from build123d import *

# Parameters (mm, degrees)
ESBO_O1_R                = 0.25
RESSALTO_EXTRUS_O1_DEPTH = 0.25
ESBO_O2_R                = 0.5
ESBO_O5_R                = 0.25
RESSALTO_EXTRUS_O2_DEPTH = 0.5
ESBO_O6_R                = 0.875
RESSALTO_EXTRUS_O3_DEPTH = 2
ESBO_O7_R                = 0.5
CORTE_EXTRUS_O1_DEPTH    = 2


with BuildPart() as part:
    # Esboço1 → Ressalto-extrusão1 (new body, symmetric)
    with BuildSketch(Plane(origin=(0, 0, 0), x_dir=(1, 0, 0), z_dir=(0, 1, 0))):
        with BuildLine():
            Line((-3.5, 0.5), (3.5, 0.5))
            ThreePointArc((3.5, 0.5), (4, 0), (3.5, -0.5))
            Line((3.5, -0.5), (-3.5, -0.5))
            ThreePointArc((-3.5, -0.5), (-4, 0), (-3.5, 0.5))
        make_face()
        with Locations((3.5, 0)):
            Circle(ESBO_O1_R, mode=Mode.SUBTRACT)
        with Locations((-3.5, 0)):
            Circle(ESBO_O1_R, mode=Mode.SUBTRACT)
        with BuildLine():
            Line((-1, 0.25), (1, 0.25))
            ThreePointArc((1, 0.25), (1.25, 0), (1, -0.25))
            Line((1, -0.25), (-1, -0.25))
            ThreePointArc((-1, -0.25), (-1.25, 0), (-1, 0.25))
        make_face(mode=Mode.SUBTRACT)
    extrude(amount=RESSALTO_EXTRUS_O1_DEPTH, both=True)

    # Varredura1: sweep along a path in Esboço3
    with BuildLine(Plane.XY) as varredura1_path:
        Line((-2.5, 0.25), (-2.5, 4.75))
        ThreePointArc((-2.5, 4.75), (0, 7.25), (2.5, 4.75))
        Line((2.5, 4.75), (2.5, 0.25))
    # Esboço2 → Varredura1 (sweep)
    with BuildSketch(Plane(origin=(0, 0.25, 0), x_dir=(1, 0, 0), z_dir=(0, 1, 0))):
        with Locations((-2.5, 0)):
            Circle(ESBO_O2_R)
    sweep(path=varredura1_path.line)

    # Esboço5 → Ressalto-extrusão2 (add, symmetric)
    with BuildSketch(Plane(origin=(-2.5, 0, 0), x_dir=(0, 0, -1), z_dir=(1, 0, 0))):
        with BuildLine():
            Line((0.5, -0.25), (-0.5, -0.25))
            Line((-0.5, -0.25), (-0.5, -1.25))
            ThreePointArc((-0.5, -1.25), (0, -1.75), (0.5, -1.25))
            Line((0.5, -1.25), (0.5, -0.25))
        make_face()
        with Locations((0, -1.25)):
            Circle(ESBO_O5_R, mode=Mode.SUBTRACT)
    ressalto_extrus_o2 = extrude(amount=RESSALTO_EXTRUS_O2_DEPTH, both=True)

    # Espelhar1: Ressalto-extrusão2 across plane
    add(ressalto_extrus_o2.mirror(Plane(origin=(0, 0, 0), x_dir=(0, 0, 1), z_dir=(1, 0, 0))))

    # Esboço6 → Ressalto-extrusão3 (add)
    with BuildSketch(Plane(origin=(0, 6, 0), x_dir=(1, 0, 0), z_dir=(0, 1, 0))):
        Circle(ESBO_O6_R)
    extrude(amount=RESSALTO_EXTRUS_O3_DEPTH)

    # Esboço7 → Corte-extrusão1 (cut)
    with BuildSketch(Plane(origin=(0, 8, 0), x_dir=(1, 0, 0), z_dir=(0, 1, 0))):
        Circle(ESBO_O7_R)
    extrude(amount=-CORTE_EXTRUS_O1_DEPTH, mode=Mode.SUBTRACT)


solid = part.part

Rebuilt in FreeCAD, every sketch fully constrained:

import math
import FreeCAD as App
import Part
import Sketcher

V = App.Vector

doc = App.newDocument("Part")
params = doc.addObject("Spreadsheet::Sheet", "Params")
for row, (alias, value) in enumerate([
    ("sketch1_diameter", "0.5 mm"),
    ("sketch1_radius", "0.5 mm"),
    ("sketch1_width", "7 mm"),
    ("sketch1_width2", "2 mm"),
    ("pad1_length", "0.5 mm"),
    ("sketch2_diameter", "1 mm"),
    ("sketch3_radius", "2.5 mm"),
    ("sketch3_height", "4.5 mm"),
    ("sketch4_diameter", "0.5 mm"),
    ("sketch4_radius", "0.5 mm"),
    ("pad2_length", "1 mm"),
    ("sketch5_diameter", "1.75 mm"),
    ("pad3_length", "2 mm"),
    ("sketch6_diameter", "1 mm"),
    ("pocket1_length", "2 mm"),
], start=1):
    params.set(f"A{row}", alias)
    params.set(f"B{row}", "=" + value)
    params.setAlias(f"B{row}", alias)

body = doc.addObject("PartDesign::Body", "Body")

sketch1 = body.newObject("Sketcher::SketchObject", "Sketch")
sketch1.AttachmentSupport = (doc.getObject("XZ_Plane"), [""])
sketch1.MapMode = "FlatFace"
sketch1.addGeometry(Part.LineSegment(V(3.5, -0.5, 0), V(-3.5, -0.5, 0)), False)
sketch1.addGeometry(Part.ArcOfCircle(Part.Circle(V(-3.5, 0, 0), V(0, 0, 1), 0.5), math.radians(90), math.radians(270)), False)
sketch1.addGeometry(Part.LineSegment(V(-3.5, 0.5, 0), V(3.5, 0.5, 0)), False)
sketch1.addGeometry(Part.ArcOfCircle(Part.Circle(V(3.5, 0, 0), V(0, 0, 1), 0.5), math.radians(-90), math.radians(90)), False)
sketch1.addGeometry(Part.Circle(V(3.5, 0, 0), V(0, 0, 1), 0.25), False)
sketch1.addGeometry(Part.LineSegment(V(-1, -0.25, 0), V(1, -0.25, 0)), False)
sketch1.addGeometry(Part.ArcOfCircle(Part.Circle(V(1, 0, 0), V(0, 0, 1), 0.25), math.radians(-90), math.radians(90)), False)
sketch1.addGeometry(Part.LineSegment(V(1, 0.25, 0), V(-1, 0.25, 0)), False)
sketch1.addGeometry(Part.ArcOfCircle(Part.Circle(V(-1, 0, 0), V(0, 0, 1), 0.25), math.radians(90), math.radians(270)), False)
sketch1.addGeometry(Part.Circle(V(-3.5, 0, 0), V(0, 0, 1), 0.25), False)
sketch1.addConstraint(Sketcher.Constraint("Tangent", 0, 2, 1, 2))
sketch1.addConstraint(Sketcher.Constraint("Tangent", 1, 1, 2, 1))
sketch1.addConstraint(Sketcher.Constraint("Tangent", 2, 2, 3, 2))
sketch1.addConstraint(Sketcher.Constraint("Tangent", 3, 1, 0, 1))
sketch1.addConstraint(Sketcher.Constraint("Tangent", 5, 2, 6, 1))
sketch1.addConstraint(Sketcher.Constraint("Tangent", 6, 2, 7, 1))
sketch1.addConstraint(Sketcher.Constraint("Tangent", 7, 2, 8, 1))
sketch1.addConstraint(Sketcher.Constraint("Tangent", 8, 2, 5, 1))
sketch1.addConstraint(Sketcher.Constraint("Horizontal", 0))
sketch1.addConstraint(Sketcher.Constraint("Horizontal", 2))
sketch1.addConstraint(Sketcher.Constraint("Horizontal", 5))
sketch1.addConstraint(Sketcher.Constraint("Horizontal", 7))
sketch1.addConstraint(Sketcher.Constraint("Coincident", 4, 3, 3, 3))
sketch1.addConstraint(Sketcher.Constraint("Coincident", 9, 3, 1, 3))
sketch1.addConstraint(Sketcher.Constraint("Equal", 4, 6))
sketch1.addConstraint(Sketcher.Constraint("Equal", 8, 9))
sketch1.addConstraint(Sketcher.Constraint("Symmetric", 1, 3, 3, 3, -1, 1))
sketch1.addConstraint(Sketcher.Constraint("Symmetric", 6, 3, 8, 3, -1, 1))
sketch1.addConstraint(Sketcher.Constraint("Diameter", 4, 0.5))
sketch1.addConstraint(Sketcher.Constraint("Radius", 1, 0.5))
sketch1.addConstraint(Sketcher.Constraint("DistanceX", 0, 2, 0, 1, 7.0))
sketch1.addConstraint(Sketcher.Constraint("DistanceX", 5, 1, 5, 2, 2.0))
sketch1.setExpression("Constraints[18]", "Params.sketch1_diameter")
sketch1.setExpression("Constraints[19]", "Params.sketch1_radius")
sketch1.setExpression("Constraints[20]", "Params.sketch1_width")
sketch1.setExpression("Constraints[21]", "Params.sketch1_width2")
pad1 = body.newObject("PartDesign::Pad", "Pad")
pad1.Profile = sketch1
pad1.setExpression("Length", "Params.pad1_length")
pad1.Midplane = True

sketch2 = body.newObject("Sketcher::SketchObject", "Sketch001")
sketch2.AttachmentSupport = (doc.getObject("XZ_Plane"), [""])
sketch2.MapMode = "FlatFace"
sketch2.AttachmentOffset = App.Placement(V(0, 0, -0.25), App.Rotation())
sketch2.addGeometry(Part.Circle(V(-2.5, 0, 0), V(0, 0, 1), 0.5), False)
sketch2.addConstraint(Sketcher.Constraint("PointOnObject", 0, 3, -1))
sketch2.addConstraint(Sketcher.Constraint("Diameter", 0, 1.0))
sketch2.addConstraint(Sketcher.Constraint("DistanceX", 0, 3, -1, 1, 2.5))
sketch2.setExpression("Constraints[1]", "Params.sketch2_diameter")

sketch3 = body.newObject("Sketcher::SketchObject", "Sketch002")
sketch3.AttachmentSupport = (doc.getObject("XY_Plane"), [""])
sketch3.MapMode = "FlatFace"
sketch3.addGeometry(Part.LineSegment(V(-2.5, 0.25, 0), V(-2.5, 4.75, 0)), False)
sketch3.addGeometry(Part.ArcOfCircle(Part.Circle(V(0, 4.75, 0), V(0, 0, 1), 2.5), math.radians(0), math.radians(180)), False)
sketch3.addGeometry(Part.LineSegment(V(2.5, 4.75, 0), V(2.5, 0.25, 0)), False)
sketch3.addConstraint(Sketcher.Constraint("Tangent", 0, 2, 1, 2))
sketch3.addConstraint(Sketcher.Constraint("Tangent", 1, 1, 2, 1))
sketch3.addConstraint(Sketcher.Constraint("Vertical", 0))
sketch3.addConstraint(Sketcher.Constraint("Vertical", 2))
sketch3.addConstraint(Sketcher.Constraint("Symmetric", 0, 1, 2, 2, -2))
sketch3.addConstraint(Sketcher.Constraint("Radius", 1, 2.5))
sketch3.addConstraint(Sketcher.Constraint("DistanceY", 0, 1, 0, 2, 4.5))
sketch3.addConstraint(Sketcher.Constraint("DistanceY", -1, 1, 1, 3, 4.75))
sketch3.setExpression("Constraints[5]", "Params.sketch3_radius")
sketch3.setExpression("Constraints[6]", "Params.sketch3_height")
doc.recompute()

additivepipe = body.newObject("PartDesign::AdditivePipe", "AdditivePipe")
additivepipe.Profile = sketch2
additivepipe.Spine = (sketch3, ["Edge1", "Edge2", "Edge3"])

sketch4 = body.newObject("Sketcher::SketchObject", "Sketch003")
sketch4.AttachmentSupport = (doc.getObject("YZ_Plane"), [""])
sketch4.MapMode = "FlatFace"
sketch4.AttachmentOffset = App.Placement(V(0, 0, -2.5), App.Rotation())
sketch4.addGeometry(Part.LineSegment(V(-0.25, -0.5, 0), V(-0.25, 0.5, 0)), False)
sketch4.addGeometry(Part.LineSegment(V(-0.25, 0.5, 0), V(-1.25, 0.5, 0)), False)
sketch4.addGeometry(Part.ArcOfCircle(Part.Circle(V(-1.25, 0, 0), V(0, 0, 1), 0.5), math.radians(90), math.radians(270)), False)
sketch4.addGeometry(Part.LineSegment(V(-1.25, -0.5, 0), V(-0.25, -0.5, 0)), False)
sketch4.addGeometry(Part.Circle(V(-1.25, 0, 0), V(0, 0, 1), 0.25), False)
sketch4.addConstraint(Sketcher.Constraint("Coincident", 0, 2, 1, 1))
sketch4.addConstraint(Sketcher.Constraint("Tangent", 1, 2, 2, 1))
sketch4.addConstraint(Sketcher.Constraint("Tangent", 2, 2, 3, 1))
sketch4.addConstraint(Sketcher.Constraint("Coincident", 3, 2, 0, 1))
sketch4.addConstraint(Sketcher.Constraint("Vertical", 0))
sketch4.addConstraint(Sketcher.Constraint("Horizontal", 1))
sketch4.addConstraint(Sketcher.Constraint("Horizontal", 3))
sketch4.addConstraint(Sketcher.Constraint("Coincident", 4, 3, 2, 3))
sketch4.addConstraint(Sketcher.Constraint("PointOnObject", 2, 3, -1))
sketch4.addConstraint(Sketcher.Constraint("Equal", 3, 0))
sketch4.addConstraint(Sketcher.Constraint("Diameter", 4, 0.5))
sketch4.addConstraint(Sketcher.Constraint("Radius", 2, 0.5))
sketch4.addConstraint(Sketcher.Constraint("DistanceX", 2, 3, -1, 1, 1.25))
sketch4.setExpression("Constraints[10]", "Params.sketch4_diameter")
sketch4.setExpression("Constraints[11]", "Params.sketch4_radius")
pad2 = body.newObject("PartDesign::Pad", "Pad001")
pad2.Profile = sketch4
pad2.setExpression("Length", "Params.pad2_length")
pad2.Midplane = True
doc.recompute()

mirrored = body.newObject("PartDesign::Mirrored", "Mirrored")
mirrored.Originals = [pad2]
mirrored.MirrorPlane = (doc.getObject("YZ_Plane"), [""])
body.Tip = mirrored

sketch5 = body.newObject("Sketcher::SketchObject", "Sketch004")
sketch5.AttachmentSupport = (doc.getObject("XZ_Plane"), [""])
sketch5.MapMode = "FlatFace"
sketch5.AttachmentOffset = App.Placement(V(0, 0, -6), App.Rotation())
sketch5.addGeometry(Part.Circle(V(0, 0, 0), V(0, 0, 1), 0.875), False)
sketch5.addConstraint(Sketcher.Constraint("Coincident", 0, 3, -1, 1))
sketch5.addConstraint(Sketcher.Constraint("Diameter", 0, 1.75))
sketch5.setExpression("Constraints[1]", "Params.sketch5_diameter")
pad3 = body.newObject("PartDesign::Pad", "Pad002")
pad3.Profile = sketch5
pad3.setExpression("Length", "Params.pad3_length")
pad3.Reversed = True

sketch6 = body.newObject("Sketcher::SketchObject", "Sketch005")
sketch6.AttachmentSupport = (doc.getObject("XZ_Plane"), [""])
sketch6.MapMode = "FlatFace"
sketch6.AttachmentOffset = App.Placement(V(0, 0, -8), App.Rotation())
sketch6.addGeometry(Part.Circle(V(0, 0, 0), V(0, 0, 1), 0.5), False)
sketch6.addConstraint(Sketcher.Constraint("Coincident", 0, 3, -1, 1))
sketch6.addConstraint(Sketcher.Constraint("Diameter", 0, 1.0))
sketch6.setExpression("Constraints[1]", "Params.sketch6_diameter")
pocket1 = body.newObject("PartDesign::Pocket", "Pocket")
pocket1.Profile = sketch6
pocket1.setExpression("Length", "Params.pocket1_length")
pocket1.Reversed = True

doc.recompute()
